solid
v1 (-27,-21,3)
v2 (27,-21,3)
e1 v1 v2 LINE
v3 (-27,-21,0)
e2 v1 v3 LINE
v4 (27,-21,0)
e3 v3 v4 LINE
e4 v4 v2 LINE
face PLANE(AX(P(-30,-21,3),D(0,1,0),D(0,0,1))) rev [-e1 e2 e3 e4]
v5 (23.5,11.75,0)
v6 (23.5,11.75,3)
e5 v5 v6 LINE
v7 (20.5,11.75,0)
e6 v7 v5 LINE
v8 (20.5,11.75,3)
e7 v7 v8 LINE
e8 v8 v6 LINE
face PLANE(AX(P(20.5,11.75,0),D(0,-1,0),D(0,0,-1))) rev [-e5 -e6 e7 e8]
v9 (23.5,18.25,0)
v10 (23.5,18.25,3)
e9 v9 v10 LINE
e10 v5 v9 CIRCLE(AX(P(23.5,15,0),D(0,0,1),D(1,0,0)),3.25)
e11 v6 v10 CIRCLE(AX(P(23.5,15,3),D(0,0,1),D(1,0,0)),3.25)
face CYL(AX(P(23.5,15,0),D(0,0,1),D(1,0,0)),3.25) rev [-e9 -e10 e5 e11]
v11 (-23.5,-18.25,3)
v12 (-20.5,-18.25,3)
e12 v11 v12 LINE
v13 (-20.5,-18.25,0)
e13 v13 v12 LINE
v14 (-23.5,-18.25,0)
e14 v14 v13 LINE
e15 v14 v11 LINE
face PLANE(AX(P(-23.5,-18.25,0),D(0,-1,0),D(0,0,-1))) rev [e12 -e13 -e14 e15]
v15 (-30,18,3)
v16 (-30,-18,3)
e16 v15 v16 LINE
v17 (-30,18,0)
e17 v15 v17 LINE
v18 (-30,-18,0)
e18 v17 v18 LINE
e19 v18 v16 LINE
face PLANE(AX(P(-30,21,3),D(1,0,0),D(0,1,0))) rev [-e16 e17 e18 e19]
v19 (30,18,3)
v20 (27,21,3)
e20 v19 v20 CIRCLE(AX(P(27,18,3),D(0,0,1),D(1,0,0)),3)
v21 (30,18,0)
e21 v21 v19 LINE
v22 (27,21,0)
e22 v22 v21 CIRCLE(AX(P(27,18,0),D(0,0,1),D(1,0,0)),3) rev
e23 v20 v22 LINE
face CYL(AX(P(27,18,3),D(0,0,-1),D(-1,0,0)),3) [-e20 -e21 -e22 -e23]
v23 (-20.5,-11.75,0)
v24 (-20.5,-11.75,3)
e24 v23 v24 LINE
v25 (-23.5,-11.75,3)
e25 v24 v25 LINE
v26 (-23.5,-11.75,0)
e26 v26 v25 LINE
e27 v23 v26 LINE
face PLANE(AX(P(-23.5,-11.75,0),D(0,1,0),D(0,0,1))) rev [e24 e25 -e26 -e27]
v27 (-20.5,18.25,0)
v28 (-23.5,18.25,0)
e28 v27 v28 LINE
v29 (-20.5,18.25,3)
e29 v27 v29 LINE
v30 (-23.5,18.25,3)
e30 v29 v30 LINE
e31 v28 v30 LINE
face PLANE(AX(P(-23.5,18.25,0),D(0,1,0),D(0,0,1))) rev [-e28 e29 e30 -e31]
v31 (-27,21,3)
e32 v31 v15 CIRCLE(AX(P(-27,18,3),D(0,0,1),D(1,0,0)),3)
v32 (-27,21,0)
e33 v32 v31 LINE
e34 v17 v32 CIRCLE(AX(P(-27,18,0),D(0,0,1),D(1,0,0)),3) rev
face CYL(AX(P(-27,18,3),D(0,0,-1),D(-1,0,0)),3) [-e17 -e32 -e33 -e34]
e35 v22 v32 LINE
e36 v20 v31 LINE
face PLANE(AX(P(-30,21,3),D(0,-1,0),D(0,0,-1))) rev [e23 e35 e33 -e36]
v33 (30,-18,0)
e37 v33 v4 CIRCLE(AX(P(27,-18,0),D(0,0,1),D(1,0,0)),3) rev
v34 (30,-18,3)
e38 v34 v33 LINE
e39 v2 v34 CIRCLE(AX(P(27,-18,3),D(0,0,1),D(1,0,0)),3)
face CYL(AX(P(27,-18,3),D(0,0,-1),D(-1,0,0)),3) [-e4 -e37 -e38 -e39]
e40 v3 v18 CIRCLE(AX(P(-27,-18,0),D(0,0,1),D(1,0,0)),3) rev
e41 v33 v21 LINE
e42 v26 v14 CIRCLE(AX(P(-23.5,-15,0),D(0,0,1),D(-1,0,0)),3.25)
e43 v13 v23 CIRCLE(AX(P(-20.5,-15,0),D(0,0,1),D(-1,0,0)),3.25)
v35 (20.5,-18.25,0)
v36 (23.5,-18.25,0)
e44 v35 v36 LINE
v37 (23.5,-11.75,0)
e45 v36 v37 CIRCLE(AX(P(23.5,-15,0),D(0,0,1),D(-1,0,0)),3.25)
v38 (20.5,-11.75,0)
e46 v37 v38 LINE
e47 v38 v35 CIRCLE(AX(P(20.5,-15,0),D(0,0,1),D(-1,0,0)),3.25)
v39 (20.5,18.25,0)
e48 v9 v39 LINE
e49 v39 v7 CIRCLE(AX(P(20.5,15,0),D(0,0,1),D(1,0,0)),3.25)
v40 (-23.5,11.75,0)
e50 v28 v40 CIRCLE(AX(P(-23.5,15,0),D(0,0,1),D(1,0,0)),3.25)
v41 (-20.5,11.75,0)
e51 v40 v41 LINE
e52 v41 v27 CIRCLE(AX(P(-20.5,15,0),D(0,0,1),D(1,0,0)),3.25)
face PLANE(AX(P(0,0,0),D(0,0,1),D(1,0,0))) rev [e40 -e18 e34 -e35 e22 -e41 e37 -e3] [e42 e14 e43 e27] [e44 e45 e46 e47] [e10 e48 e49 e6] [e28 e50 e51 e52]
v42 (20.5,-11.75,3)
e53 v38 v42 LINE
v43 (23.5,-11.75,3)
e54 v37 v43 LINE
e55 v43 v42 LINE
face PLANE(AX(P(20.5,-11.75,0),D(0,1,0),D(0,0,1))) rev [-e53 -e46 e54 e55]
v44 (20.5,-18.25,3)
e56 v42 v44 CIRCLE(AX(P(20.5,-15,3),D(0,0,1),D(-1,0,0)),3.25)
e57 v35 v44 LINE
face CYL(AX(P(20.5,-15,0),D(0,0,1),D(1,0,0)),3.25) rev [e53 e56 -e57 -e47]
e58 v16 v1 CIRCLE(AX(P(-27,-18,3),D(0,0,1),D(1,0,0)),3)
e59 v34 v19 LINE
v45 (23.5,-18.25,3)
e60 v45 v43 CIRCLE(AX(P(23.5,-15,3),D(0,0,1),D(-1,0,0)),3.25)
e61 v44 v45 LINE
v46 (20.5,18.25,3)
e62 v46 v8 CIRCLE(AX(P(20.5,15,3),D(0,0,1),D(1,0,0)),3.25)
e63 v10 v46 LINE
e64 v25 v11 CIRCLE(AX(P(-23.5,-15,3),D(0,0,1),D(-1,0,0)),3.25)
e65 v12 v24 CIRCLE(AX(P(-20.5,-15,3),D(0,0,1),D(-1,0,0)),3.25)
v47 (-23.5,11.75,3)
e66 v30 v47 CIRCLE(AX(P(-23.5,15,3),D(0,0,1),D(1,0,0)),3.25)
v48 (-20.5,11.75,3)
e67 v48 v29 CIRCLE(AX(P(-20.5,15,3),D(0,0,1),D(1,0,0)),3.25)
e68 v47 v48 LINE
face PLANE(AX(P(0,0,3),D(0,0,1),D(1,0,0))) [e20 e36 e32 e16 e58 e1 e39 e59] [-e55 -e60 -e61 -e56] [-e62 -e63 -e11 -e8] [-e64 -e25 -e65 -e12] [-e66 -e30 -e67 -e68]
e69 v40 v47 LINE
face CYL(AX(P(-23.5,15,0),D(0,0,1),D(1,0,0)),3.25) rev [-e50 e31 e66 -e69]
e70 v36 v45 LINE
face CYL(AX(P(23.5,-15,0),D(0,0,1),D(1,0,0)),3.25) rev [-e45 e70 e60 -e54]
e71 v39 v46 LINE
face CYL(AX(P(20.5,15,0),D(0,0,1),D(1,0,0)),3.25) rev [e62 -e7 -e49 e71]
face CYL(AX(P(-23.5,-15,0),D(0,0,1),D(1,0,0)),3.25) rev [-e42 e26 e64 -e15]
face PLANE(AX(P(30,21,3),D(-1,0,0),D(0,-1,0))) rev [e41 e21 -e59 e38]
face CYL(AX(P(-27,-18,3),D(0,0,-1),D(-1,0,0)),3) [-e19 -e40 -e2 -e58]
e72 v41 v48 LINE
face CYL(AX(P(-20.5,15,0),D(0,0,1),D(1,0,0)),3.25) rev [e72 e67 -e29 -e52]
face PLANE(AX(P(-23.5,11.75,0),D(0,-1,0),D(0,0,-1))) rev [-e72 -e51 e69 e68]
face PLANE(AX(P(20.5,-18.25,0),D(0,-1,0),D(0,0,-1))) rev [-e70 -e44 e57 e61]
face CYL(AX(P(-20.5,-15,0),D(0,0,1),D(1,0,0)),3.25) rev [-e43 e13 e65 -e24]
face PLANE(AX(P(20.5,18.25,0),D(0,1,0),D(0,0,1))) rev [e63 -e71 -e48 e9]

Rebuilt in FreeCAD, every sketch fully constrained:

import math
import FreeCAD as App
import Part
import Sketcher
from FreeCAD import Vector
Q = App.Units.Quantity


def edges_at(feature, points):
    """Names of the edges that pass closest to the given points."""
    edges = feature.Shape.Edges
    near = lambda p: min(range(len(edges)), key=lambda i: edges[i].distToShape(Part.Vertex(*p))[0])
    return sorted({f"Edge{near(p) + 1}" for p in points})


def add_polygon(sketch, points):
    """Adds a closed chain of lines whose ends are joined by coincident constraints."""
    first, n = sketch.GeometryCount, len(points)
    for a, b in zip(points, points[1:] + points[:1]):
        sketch.addGeometry(Part.LineSegment(App.Vector(*a, 0), App.Vector(*b, 0)), False)
    for i in range(n):
        sketch.addConstraint(Sketcher.Constraint("Coincident", first + i, 2, first + (i + 1) % n, 1))

doc = App.newDocument("Part")
body = doc.addObject("PartDesign::Body", "Body")

# Sketch on XY plane
sketch1 = body.newObject("Sketcher::SketchObject", "Sketch")
sketch1.AttachmentSupport = (doc.getObject("XY_Plane"), [""])
sketch1.MapMode = "FlatFace"
add_polygon(sketch1, [(-30, 21), (-30, -21), (30, -21), (30, 21)])  # lines 0-3
sketch1.addConstraint([
    Sketcher.Constraint("Vertical", 0),
    Sketcher.Constraint("Horizontal", 1),
    Sketcher.Constraint("Vertical", 2),
    Sketcher.Constraint("Horizontal", 3),
    Sketcher.Constraint("Symmetric", 0, 2, 2, 2, -1, 1),
    Sketcher.Constraint("DistanceX", 1, 1, 1, 2, Q("60 mm")),
    Sketcher.Constraint("DistanceY", 0, 2, 0, 1, Q("42 mm")),
])
pad1 = body.newObject("PartDesign::Pad", "Pad")
pad1.Profile = sketch1
pad1.Length = 3

# Sketch on XY plane
sketch2 = body.newObject("Sketcher::SketchObject", "Sketch001")
sketch2.AttachmentSupport = (doc.getObject("XY_Plane"), [""])
sketch2.MapMode = "FlatFace"
sketch2.AttachmentOffset = App.Placement(Vector(0, 0, 3), App.Rotation())
sketch2.addGeometry([
    Part.LineSegment(Vector(-20.5, 18.2, 0), Vector(-23.5, 18.2, 0)),  # 0
    Part.ArcOfCircle(Part.Circle(Vector(-23.5, 15, 0), Vector(0, 0, 1), 3.2), math.radians(90), math.radians(270)),  # 1
    Part.LineSegment(Vector(-23.5, 11.8, 0), Vector(-20.5, 11.8, 0)),  # 2
    Part.ArcOfCircle(Part.Circle(Vector(-20.5, 15, 0), Vector(0, 0, 1), 3.2), math.radians(-90), math.radians(90)),  # 3
    Part.LineSegment(Vector(23.5, 18.2, 0), Vector(20.5, 18.2, 0)),  # 4
    Part.ArcOfCircle(Part.Circle(Vector(20.5, 15, 0), Vector(0, 0, 1), 3.2), math.radians(90), math.radians(270)),  # 5
    Part.LineSegment(Vector(20.5, 11.8, 0), Vector(23.5, 11.8, 0)),  # 6
    Part.ArcOfCircle(Part.Circle(Vector(23.5, 15, 0), Vector(0, 0, 1), 3.2), math.radians(-90), math.radians(90)),  # 7
    Part.LineSegment(Vector(20.5, -18.2, 0), Vector(23.5, -18.2, 0)),  # 8
    Part.ArcOfCircle(Part.Circle(Vector(23.5, -15, 0), Vector(0, 0, 1), 3.2), math.radians(-90), math.radians(90)),  # 9
    Part.LineSegment(Vector(23.5, -11.8, 0), Vector(20.5, -11.8, 0)),  # 10
    Part.ArcOfCircle(Part.Circle(Vector(20.5, -15, 0), Vector(0, 0, 1), 3.2), math.radians(90), math.radians(270)),  # 11
    Part.LineSegment(Vector(-23.5, -18.2, 0), Vector(-20.5, -18.2, 0)),  # 12
    Part.ArcOfCircle(Part.Circle(Vector(-20.5, -15, 0), Vector(0, 0, 1), 3.2), math.radians(-90), math.radians(90)),  # 13
    Part.LineSegment(Vector(-20.5, -11.8, 0), Vector(-23.5, -11.8, 0)),  # 14
    Part.ArcOfCircle(Part.Circle(Vector(-23.5, -15, 0), Vector(0, 0, 1), 3.2), math.radians(90), math.radians(270)),  # 15
], False)
sketch2.addConstraint([
    Sketcher.Constraint("Tangent", 0, 2, 1, 1),
    Sketcher.Constraint("Tangent", 1, 2, 2, 1),
    Sketcher.Constraint("Tangent", 2, 2, 3, 1),
    Sketcher.Constraint("Tangent", 3, 2, 0, 1),
    Sketcher.Constraint("Tangent", 4, 2, 5, 1),
    Sketcher.Constraint("Tangent", 5, 2, 6, 1),
    Sketcher.Constraint("Tangent", 6, 2, 7, 1),
    Sketcher.Constraint("Tangent", 7, 2, 4, 1),
    Sketcher.Constraint("Tangent", 8, 2, 9, 1),
    Sketcher.Constraint("Tangent", 9, 2, 10, 1),
    Sketcher.Constraint("Tangent", 10, 2, 11, 1),
    Sketcher.Constraint("Tangent", 11, 2, 8, 1),
    Sketcher.Constraint("Tangent", 12, 2, 13, 1),
    Sketcher.Constraint("Tangent", 13, 2, 14, 1),
    Sketcher.Constraint("Tangent", 14, 2, 15, 1),
    Sketcher.Constraint("Tangent", 15, 2, 12, 1),
    Sketcher.Constraint("Horizontal", 0),
    Sketcher.Constraint("Horizontal", 2),
    Sketcher.Constraint("Horizontal", 4),
    Sketcher.Constraint("Horizontal", 6),
    Sketcher.Constraint("Horizontal", 8),
    Sketcher.Constraint("Horizontal", 10),
    Sketcher.Constraint("Horizontal", 12),
    Sketcher.Constraint("Horizontal", 14),
    Sketcher.Constraint("Equal", 3, 5),
    Sketcher.Constraint("Equal", 7, 9),
    Sketcher.Constraint("Equal", 11, 13),
    Sketcher.Constraint("Symmetric", 1, 3, 9, 3, -1, 1),
    Sketcher.Constraint("Symmetric", 5, 3, 13, 3, -1, 1),
    Sketcher.Constraint("Symmetric", 3, 3, 5, 3, -2),
    Sketcher.Constraint("Vertical", 7, 3, 9, 3),
    Sketcher.Constraint("Vertical", 5, 3, 11, 3),
    Sketcher.Constraint("Vertical", 1, 3, 15, 3),
    Sketcher.Constraint("DistanceX", 0, 2, 0, 1, Q("3 mm")),
    Sketcher.Constraint("Radius", 1, Q("3.25 mm")),
    Sketcher.Constraint("DistanceY", -1, 1, 1, 3, Q("15 mm")),
    Sketcher.Constraint("DistanceX", 3, 3, 5, 3, Q("41 mm")),
])
pocket1 = body.newObject("PartDesign::Pocket", "Pocket")
pocket1.Profile = sketch2
pocket1.Length = 3
doc.recompute()

fillet = body.newObject("PartDesign::Fillet", "Fillet")
fillet.Base = (pocket1, edges_at(pocket1, [
    (-30, 21, 1.5),
    (30, 21, 1.5),
    (30, -21, 1.5),
    (-30, -21, 1.5),
]))
fillet.Radius = 3

doc.recompute()
